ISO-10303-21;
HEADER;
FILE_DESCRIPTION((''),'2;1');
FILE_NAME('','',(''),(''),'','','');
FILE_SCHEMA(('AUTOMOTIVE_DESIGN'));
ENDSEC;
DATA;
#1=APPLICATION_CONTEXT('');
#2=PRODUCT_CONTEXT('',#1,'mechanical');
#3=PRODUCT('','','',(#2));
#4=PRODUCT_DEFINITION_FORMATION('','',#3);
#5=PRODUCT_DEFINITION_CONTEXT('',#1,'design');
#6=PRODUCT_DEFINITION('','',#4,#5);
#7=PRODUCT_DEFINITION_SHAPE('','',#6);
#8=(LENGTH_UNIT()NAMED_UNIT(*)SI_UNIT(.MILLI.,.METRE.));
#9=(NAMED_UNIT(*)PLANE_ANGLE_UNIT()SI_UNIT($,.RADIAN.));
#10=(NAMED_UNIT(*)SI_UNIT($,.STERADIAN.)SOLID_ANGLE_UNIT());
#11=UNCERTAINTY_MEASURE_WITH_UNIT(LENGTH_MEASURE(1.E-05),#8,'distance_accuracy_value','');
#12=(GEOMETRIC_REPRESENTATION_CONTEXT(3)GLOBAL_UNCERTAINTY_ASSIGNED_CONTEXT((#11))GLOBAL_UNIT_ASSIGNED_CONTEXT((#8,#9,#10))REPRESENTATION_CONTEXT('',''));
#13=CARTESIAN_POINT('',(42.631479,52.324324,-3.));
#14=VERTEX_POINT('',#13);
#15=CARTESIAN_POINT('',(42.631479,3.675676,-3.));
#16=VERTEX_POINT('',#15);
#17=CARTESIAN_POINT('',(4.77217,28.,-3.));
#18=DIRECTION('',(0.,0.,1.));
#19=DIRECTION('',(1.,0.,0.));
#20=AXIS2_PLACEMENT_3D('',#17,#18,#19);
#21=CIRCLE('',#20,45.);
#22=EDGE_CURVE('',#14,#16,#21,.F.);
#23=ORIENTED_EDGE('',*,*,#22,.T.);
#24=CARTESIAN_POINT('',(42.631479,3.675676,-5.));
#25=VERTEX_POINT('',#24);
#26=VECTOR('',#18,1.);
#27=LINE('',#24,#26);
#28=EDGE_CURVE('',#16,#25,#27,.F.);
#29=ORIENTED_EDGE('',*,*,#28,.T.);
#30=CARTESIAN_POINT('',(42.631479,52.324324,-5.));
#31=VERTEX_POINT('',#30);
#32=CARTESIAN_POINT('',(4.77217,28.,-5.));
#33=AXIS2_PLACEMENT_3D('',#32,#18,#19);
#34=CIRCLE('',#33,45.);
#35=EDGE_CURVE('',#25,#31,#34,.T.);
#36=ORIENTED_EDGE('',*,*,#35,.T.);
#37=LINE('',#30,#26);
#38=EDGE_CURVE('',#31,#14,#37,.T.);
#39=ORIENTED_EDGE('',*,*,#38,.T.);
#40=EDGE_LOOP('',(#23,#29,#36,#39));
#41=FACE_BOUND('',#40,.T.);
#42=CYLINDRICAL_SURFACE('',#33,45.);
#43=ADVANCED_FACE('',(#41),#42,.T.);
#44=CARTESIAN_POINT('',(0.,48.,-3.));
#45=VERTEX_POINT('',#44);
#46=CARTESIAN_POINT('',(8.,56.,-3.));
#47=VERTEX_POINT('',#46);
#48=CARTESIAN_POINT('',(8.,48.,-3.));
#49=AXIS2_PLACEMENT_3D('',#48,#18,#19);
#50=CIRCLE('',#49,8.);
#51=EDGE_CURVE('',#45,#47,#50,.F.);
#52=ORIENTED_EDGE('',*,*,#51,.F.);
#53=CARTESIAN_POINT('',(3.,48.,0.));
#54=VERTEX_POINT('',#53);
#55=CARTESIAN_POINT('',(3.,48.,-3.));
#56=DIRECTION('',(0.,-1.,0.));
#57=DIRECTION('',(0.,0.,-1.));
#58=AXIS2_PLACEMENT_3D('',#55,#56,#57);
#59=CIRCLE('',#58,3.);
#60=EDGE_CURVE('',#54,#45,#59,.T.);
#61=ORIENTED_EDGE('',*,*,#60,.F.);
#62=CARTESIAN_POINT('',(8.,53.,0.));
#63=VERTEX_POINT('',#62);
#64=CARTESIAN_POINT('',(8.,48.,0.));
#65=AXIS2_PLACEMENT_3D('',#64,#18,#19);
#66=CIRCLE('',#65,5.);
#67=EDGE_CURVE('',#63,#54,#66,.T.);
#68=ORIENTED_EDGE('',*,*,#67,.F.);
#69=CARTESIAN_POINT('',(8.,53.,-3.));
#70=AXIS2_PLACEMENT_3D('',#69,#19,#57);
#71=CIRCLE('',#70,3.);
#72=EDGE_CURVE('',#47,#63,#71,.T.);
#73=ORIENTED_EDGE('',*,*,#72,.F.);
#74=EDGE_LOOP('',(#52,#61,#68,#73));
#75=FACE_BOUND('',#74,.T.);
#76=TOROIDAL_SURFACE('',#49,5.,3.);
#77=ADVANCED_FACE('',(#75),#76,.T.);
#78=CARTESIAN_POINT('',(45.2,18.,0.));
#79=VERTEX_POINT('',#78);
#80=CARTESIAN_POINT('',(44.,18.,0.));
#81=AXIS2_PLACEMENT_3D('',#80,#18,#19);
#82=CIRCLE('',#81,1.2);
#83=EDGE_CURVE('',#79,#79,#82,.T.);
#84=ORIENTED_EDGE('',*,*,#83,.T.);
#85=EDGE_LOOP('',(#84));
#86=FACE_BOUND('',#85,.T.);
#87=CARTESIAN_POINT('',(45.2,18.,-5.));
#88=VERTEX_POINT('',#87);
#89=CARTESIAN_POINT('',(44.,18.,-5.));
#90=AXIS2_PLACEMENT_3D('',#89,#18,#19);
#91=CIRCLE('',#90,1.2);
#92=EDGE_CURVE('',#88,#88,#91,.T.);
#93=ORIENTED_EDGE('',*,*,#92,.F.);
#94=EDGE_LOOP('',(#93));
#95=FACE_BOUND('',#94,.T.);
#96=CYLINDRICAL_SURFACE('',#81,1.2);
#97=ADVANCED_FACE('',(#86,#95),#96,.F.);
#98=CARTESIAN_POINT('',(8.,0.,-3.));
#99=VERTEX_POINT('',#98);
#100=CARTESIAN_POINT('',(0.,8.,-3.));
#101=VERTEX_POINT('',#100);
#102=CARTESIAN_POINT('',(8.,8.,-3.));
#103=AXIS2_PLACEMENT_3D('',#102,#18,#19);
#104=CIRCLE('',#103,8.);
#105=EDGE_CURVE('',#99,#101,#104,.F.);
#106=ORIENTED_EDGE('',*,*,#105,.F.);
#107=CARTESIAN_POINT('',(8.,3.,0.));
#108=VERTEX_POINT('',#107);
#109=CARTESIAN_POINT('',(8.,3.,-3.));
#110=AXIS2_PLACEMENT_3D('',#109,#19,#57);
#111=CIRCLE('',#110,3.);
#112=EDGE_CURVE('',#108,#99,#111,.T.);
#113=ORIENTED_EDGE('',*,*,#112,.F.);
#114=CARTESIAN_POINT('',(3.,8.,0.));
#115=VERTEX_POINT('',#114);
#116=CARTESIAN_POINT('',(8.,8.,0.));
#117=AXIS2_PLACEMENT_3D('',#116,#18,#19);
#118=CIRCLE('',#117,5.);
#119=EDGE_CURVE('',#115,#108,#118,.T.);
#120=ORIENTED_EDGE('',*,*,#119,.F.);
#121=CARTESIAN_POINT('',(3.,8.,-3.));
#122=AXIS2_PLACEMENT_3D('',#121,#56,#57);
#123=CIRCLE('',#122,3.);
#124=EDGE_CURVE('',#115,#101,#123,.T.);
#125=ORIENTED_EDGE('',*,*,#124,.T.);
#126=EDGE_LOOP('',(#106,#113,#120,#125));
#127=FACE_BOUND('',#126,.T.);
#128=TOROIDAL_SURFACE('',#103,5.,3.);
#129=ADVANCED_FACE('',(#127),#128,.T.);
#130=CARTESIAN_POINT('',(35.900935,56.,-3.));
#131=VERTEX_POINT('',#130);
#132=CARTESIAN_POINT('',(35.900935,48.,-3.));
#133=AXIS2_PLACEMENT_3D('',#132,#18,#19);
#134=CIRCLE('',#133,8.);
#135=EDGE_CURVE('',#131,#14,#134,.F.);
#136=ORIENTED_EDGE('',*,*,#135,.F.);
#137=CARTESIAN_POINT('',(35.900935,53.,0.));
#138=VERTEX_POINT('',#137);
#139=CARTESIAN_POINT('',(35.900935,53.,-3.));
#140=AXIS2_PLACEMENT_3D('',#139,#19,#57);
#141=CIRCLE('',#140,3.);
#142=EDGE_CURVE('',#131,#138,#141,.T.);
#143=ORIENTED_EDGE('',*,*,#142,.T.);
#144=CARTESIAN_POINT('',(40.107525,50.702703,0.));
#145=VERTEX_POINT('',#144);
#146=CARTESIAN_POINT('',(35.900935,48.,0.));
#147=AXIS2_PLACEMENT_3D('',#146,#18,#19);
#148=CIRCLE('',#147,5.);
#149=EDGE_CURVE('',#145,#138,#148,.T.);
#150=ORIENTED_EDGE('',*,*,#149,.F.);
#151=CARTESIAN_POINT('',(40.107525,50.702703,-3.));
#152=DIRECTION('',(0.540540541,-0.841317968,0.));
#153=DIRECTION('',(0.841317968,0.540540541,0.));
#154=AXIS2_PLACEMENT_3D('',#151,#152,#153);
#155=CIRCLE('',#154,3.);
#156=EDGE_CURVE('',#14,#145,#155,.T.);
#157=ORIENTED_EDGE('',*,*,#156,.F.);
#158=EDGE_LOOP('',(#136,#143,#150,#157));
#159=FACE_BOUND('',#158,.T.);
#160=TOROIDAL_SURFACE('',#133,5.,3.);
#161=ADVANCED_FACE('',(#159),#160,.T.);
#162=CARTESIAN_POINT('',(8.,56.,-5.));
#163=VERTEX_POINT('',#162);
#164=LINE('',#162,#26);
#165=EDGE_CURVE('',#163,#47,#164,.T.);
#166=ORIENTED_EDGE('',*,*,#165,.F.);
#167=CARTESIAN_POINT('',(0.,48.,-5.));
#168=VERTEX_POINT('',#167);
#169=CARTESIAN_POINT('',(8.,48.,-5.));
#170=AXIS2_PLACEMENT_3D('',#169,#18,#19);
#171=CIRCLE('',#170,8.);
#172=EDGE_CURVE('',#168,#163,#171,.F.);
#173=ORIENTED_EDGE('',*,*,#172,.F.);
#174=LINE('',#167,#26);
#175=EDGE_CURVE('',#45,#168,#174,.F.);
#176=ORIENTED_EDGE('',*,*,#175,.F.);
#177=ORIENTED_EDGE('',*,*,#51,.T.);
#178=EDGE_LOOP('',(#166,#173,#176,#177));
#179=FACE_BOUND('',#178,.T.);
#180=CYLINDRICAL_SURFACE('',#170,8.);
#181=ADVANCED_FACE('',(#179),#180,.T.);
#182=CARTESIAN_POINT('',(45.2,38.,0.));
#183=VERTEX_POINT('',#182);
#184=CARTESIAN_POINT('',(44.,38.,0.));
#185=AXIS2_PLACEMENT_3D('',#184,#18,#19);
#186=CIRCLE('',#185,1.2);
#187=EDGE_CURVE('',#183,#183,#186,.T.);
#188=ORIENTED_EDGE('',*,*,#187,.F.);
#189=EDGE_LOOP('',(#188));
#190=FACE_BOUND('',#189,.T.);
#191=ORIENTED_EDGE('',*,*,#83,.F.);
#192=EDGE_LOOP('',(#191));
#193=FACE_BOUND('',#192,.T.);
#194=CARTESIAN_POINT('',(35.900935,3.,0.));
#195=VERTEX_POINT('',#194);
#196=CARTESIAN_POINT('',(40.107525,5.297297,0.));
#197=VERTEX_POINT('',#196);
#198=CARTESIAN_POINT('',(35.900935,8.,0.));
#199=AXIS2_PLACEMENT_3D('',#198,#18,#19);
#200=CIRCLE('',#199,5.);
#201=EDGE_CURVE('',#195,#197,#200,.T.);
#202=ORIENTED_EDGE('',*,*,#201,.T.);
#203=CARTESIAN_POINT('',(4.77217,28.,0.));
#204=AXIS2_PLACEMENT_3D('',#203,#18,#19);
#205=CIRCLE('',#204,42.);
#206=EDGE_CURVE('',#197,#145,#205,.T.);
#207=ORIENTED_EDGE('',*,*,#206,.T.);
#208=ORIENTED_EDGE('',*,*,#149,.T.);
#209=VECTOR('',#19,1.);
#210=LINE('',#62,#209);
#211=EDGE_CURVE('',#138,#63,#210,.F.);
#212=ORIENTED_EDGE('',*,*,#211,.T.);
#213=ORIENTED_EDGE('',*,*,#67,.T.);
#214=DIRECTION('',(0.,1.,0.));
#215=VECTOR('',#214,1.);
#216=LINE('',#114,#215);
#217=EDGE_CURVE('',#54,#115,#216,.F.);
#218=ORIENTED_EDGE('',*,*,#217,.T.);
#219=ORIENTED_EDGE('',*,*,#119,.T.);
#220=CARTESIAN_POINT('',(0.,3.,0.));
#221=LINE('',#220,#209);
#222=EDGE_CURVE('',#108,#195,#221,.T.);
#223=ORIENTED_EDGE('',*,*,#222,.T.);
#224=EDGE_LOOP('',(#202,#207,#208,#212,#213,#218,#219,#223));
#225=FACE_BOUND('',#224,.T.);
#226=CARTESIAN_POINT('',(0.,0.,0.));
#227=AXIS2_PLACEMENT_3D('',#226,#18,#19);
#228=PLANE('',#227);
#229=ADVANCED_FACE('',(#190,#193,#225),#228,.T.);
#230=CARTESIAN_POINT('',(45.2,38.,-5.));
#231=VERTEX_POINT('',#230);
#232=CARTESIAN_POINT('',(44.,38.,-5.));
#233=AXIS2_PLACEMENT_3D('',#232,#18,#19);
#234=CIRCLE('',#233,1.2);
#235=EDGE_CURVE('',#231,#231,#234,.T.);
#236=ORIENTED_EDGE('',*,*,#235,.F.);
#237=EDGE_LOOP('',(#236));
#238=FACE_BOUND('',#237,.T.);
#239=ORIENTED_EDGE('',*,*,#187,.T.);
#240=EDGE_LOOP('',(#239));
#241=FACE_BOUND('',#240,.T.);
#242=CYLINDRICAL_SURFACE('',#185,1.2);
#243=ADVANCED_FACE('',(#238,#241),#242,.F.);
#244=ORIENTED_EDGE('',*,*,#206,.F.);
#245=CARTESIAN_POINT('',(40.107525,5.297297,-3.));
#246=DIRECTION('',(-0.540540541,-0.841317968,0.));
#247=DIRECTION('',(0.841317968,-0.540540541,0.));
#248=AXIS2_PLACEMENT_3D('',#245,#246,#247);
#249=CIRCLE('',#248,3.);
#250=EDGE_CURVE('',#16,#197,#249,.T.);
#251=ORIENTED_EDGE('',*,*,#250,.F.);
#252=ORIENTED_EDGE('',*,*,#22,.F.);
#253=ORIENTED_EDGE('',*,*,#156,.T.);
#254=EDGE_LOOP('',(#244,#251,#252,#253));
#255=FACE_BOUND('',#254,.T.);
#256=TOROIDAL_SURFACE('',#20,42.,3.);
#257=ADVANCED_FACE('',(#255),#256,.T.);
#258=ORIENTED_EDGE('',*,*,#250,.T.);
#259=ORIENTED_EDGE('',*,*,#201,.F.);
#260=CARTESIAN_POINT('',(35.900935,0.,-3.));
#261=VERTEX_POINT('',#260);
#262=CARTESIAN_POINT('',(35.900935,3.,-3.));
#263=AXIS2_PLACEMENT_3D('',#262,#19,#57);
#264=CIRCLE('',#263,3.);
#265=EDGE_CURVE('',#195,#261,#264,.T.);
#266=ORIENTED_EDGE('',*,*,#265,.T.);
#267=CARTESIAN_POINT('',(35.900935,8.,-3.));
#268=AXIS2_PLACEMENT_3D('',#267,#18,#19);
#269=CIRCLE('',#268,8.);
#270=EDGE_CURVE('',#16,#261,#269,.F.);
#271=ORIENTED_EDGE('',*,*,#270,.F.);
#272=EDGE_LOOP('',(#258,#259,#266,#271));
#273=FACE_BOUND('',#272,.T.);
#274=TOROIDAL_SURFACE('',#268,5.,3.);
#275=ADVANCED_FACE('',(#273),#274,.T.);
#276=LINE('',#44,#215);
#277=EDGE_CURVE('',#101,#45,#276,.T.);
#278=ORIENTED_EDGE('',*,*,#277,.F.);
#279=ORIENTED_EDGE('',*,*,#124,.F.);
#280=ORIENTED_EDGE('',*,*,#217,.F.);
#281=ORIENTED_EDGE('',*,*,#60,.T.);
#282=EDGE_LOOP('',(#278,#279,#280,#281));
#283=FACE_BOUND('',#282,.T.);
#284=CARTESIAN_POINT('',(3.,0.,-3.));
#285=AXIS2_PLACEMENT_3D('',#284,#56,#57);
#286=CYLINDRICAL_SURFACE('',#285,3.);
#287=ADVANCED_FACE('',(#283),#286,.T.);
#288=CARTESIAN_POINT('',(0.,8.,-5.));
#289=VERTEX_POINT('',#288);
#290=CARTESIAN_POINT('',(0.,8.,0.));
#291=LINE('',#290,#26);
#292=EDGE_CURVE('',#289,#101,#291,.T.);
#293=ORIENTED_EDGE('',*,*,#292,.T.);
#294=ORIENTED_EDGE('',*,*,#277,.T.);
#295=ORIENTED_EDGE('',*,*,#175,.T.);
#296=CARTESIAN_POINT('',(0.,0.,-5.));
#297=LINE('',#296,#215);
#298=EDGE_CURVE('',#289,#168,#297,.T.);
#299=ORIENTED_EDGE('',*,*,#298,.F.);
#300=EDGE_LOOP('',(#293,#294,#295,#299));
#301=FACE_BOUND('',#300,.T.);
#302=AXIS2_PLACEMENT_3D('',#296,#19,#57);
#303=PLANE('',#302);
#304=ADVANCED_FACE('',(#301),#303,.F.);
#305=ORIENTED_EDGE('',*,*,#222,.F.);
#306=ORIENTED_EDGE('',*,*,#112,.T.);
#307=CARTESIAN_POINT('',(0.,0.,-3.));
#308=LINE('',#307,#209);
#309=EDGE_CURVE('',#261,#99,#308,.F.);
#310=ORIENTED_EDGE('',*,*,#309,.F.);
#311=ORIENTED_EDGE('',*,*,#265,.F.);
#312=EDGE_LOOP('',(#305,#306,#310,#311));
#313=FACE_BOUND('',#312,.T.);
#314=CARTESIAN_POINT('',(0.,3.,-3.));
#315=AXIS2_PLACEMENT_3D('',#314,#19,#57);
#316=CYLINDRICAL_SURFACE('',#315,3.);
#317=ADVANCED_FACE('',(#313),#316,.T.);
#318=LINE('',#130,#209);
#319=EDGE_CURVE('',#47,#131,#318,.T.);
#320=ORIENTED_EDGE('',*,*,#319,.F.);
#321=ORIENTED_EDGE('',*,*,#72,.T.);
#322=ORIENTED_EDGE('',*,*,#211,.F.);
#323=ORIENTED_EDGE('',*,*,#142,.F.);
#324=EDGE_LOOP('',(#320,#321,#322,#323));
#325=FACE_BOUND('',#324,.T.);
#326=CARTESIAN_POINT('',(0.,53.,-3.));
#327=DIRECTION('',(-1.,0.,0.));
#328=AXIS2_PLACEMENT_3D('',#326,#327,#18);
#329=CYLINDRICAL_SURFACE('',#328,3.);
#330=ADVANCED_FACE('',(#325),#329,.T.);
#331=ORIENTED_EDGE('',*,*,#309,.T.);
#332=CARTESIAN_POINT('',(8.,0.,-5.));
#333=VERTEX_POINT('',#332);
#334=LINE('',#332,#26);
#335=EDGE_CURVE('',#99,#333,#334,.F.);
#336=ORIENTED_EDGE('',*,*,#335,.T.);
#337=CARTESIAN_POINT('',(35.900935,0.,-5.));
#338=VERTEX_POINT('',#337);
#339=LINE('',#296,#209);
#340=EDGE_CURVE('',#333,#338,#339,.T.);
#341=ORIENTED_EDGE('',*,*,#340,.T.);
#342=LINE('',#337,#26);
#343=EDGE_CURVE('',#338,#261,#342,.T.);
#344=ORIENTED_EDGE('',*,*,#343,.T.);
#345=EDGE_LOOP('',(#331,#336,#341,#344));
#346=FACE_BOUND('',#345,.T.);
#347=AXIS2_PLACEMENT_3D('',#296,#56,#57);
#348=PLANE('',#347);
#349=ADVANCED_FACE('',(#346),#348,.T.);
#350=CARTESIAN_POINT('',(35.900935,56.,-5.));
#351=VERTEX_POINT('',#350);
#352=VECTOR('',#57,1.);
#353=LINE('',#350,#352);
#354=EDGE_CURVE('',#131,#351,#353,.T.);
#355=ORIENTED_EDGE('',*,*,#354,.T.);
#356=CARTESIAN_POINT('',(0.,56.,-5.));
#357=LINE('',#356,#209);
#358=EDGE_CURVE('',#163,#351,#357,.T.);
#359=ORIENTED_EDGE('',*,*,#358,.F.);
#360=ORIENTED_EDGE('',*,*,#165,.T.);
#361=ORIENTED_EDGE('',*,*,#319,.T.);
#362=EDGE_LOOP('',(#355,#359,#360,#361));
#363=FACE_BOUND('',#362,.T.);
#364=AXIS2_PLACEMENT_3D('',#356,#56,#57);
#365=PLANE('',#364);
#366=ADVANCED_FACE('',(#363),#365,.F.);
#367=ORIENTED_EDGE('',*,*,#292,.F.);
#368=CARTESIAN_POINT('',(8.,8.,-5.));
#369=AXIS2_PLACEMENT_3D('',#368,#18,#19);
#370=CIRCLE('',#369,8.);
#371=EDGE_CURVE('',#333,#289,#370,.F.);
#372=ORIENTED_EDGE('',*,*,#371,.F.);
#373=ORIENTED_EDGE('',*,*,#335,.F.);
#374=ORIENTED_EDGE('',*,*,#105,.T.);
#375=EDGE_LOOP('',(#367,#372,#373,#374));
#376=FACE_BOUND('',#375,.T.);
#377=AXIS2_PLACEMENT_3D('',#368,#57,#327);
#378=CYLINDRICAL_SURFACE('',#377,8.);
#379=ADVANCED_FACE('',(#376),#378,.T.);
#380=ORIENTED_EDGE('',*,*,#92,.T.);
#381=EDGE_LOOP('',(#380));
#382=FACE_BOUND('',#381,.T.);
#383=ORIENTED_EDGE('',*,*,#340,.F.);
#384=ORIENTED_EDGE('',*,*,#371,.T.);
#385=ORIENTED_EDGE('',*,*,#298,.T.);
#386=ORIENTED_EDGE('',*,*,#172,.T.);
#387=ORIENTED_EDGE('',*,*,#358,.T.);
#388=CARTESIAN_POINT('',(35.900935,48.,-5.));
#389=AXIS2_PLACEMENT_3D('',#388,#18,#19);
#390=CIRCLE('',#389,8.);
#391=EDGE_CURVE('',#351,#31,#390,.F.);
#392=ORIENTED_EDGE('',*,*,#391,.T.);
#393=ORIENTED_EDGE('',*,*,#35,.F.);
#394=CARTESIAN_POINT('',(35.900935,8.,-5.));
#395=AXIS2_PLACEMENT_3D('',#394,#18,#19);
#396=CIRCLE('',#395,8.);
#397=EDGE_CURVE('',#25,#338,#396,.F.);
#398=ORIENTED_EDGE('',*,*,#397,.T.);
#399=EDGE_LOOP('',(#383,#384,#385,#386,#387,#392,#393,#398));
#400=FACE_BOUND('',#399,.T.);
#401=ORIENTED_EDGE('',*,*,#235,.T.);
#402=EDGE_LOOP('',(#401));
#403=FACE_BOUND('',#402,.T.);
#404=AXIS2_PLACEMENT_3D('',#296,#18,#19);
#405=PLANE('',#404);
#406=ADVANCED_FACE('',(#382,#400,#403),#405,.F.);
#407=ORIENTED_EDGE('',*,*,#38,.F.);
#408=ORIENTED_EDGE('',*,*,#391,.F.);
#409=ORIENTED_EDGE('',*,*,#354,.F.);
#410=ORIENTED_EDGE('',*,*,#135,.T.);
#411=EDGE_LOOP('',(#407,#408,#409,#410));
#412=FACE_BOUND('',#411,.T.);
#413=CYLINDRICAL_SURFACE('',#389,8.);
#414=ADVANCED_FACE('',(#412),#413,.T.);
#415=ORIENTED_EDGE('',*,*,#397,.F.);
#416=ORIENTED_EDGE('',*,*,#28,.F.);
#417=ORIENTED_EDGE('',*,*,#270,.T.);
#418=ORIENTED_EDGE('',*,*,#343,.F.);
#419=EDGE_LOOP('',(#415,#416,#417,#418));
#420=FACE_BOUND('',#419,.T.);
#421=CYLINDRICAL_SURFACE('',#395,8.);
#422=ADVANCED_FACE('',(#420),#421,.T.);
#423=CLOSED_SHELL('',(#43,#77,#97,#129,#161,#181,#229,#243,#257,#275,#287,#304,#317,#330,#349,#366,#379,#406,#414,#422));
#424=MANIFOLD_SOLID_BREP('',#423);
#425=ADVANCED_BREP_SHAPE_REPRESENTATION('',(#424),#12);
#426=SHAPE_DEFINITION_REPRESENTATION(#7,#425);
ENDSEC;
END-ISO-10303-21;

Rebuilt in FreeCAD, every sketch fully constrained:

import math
import FreeCAD as App
import Part
import Sketcher
from FreeCAD import Vector
Q = App.Units.Quantity


def edges_at(feature, points):
    """Names of the edges that pass closest to the given points."""
    edges = feature.Shape.Edges
    near = lambda p: min(range(len(edges)), key=lambda i: edges[i].distToShape(Part.Vertex(*p))[0])
    return sorted({f"Edge{near(p) + 1}" for p in points})

doc = App.newDocument("Part")
body = doc.addObject("PartDesign::Body", "Body")

# Sketch on XY plane
sketch1 = body.newObject("Sketcher::SketchObject", "Sketch")
sketch1.AttachmentSupport = (doc.getObject("XY_Plane"), [""])
sketch1.MapMode = "FlatFace"
sketch1.addGeometry(Part.LineSegment(Vector(0, 0, 0), Vector(40, 0, 0)), False)
sketch1.addGeometry(Part.ArcOfCircle(Part.Circle(Vector(4.77217, 28, 0), Vector(0, 0, 1), 45), math.radians(-38.478595), math.radians(38.478595)), False)
sketch1.addGeometry(Part.LineSegment(Vector(40, 56, 0), Vector(0, 56, 0)), False)
sketch1.addGeometry(Part.LineSegment(Vector(0, 56, 0), Vector(0, 0, 0)), False)
sketch1.addConstraint(Sketcher.Constraint("Coincident", 0, 2, 1, 1))
sketch1.addConstraint(Sketcher.Constraint("Coincident", 1, 2, 2, 1))
sketch1.addConstraint(Sketcher.Constraint("Coincident", 2, 2, 3, 1))
sketch1.addConstraint(Sketcher.Constraint("Coincident", 3, 2, 0, 1))
sketch1.addConstraint(Sketcher.Constraint("Horizontal", 0))
sketch1.addConstraint(Sketcher.Constraint("Horizontal", 2))
sketch1.addConstraint(Sketcher.Constraint("Vertical", 3))
sketch1.addConstraint(Sketcher.Constraint("Coincident", 3, 2, -1, 1))
sketch1.addConstraint(Sketcher.Constraint("Vertical", 0, 2, 1, 2))
sketch1.addConstraint(Sketcher.Constraint("Radius", 1, Q("45 mm")))
sketch1.addConstraint(Sketcher.Constraint("DistanceX", 0, 1, 0, 2, Q("40 mm")))
sketch1.addConstraint(Sketcher.Constraint("DistanceY", 3, 2, 3, 1, Q("56 mm")))
pad1 = body.newObject("PartDesign::Pad", "Pad")
pad1.Profile = sketch1
pad1.Length = 5
pad1.Reversed = True
doc.recompute()

fillet = body.newObject("PartDesign::Fillet", "Fillet")
fillet.Base = (pad1, edges_at(pad1, [
    (0, 0, -2.5),
    (0, 56, -2.5),
    (40, 56, -2.5),
    (40, 0, -2.5),
]))
fillet.Radius = 8
doc.recompute()

fillet2 = body.newObject("PartDesign::Fillet", "Fillet001")
fillet2.Base = (fillet, edges_at(fillet, [
    (49.772, 28, 0),
    (21.95, 0, 0),
    (21.95, 56, 0),
    (0, 28, 0),
    (2.343, 53.657, 0),
    (2.343, 2.343, 0),
    (39.735, 0.979, 0),
    (39.735, 55.021, 0),
]))
fillet2.Radius = 3

# Sketch on XY plane
sketch2 = body.newObject("Sketcher::SketchObject", "Sketch001")
sketch2.AttachmentSupport = (doc.getObject("XY_Plane"), [""])
sketch2.MapMode = "FlatFace"
sketch2.addGeometry(Part.Circle(Vector(44, 38, 0), Vector(0, 0, 1), 1.2), False)
sketch2.addGeometry(Part.Circle(Vector(44, 18, 0), Vector(0, 0, 1), 1.2), False)
sketch2.addConstraint(Sketcher.Constraint("Equal", 0, 1))
sketch2.addConstraint(Sketcher.Constraint("Vertical", 0, 3, 1, 3))
sketch2.addConstraint(Sketcher.Constraint("Diameter", 0, Q("2.4 mm")))
sketch2.addConstraint(Sketcher.Constraint("DistanceX", -1, 1, 0, 3, Q("44 mm")))
sketch2.addConstraint(Sketcher.Constraint("DistanceY", -1, 1, 0, 3, Q("38 mm")))
sketch2.addConstraint(Sketcher.Constraint("DistanceY", -1, 1, 1, 3, Q("18 mm")))
doc.recompute()
hole = body.newObject("PartDesign::Hole", "Hole")
hole.Profile = sketch2
hole.ThreadType = "None"
hole.Diameter = 2.4
hole.DepthType = "Dimension"
hole.Depth = 9.278967
hole.DrillPoint = "Angled"
hole.DrillPointAngle = 118

doc.recompute()
